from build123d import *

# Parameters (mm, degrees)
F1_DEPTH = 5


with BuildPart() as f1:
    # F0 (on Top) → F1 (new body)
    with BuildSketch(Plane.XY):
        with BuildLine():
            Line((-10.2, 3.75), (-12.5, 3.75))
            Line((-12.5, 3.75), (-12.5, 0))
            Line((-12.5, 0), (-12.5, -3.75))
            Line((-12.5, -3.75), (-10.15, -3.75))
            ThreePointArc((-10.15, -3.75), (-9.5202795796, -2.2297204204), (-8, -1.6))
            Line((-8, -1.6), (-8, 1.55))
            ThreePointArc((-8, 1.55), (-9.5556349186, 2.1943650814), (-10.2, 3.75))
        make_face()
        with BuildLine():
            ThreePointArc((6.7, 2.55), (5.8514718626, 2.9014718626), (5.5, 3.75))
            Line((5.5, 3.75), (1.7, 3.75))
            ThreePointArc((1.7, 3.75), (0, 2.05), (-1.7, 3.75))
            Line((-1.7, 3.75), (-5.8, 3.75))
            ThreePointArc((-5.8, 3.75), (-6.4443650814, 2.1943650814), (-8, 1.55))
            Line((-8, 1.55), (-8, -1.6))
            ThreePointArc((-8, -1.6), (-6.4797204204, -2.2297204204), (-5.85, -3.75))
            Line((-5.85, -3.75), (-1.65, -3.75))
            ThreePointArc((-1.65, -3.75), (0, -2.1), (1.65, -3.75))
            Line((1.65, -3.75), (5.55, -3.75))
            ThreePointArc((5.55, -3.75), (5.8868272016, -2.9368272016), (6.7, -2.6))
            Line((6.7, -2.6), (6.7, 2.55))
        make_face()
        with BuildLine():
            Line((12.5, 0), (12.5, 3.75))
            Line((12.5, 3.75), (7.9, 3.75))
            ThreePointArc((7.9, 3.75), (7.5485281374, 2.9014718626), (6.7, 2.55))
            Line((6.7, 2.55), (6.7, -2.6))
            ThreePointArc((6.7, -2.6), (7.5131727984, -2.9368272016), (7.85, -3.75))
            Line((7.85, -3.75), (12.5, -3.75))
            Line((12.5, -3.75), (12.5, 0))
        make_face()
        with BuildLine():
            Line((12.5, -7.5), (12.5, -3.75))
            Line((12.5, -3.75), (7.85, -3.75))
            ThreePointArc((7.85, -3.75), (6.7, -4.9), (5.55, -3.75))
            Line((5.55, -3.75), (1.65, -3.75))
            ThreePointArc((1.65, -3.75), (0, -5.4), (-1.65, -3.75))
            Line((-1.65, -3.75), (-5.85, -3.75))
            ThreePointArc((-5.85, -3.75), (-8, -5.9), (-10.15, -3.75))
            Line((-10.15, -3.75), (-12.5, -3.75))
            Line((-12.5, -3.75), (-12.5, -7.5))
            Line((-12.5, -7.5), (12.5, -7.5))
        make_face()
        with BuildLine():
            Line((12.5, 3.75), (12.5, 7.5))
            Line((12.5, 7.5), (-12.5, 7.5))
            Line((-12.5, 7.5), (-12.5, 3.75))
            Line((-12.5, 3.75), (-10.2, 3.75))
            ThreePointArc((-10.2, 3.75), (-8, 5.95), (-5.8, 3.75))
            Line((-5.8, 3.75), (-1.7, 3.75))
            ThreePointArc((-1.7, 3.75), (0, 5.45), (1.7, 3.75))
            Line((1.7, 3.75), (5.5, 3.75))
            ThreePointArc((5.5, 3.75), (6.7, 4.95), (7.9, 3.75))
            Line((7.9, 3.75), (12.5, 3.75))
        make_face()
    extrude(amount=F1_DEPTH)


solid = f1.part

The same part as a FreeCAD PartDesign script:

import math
import FreeCAD as App
import Part
import Sketcher
Q = App.Units.Quantity


def add_polygon(sketch, points):
    """Adds a closed chain of lines whose ends are joined by coincident constraints."""
    first, n = sketch.GeometryCount, len(points)
    for a, b in zip(points, points[1:] + points[:1]):
        sketch.addGeometry(Part.LineSegment(App.Vector(*a, 0), App.Vector(*b, 0)), False)
    for i in range(n):
        sketch.addConstraint(Sketcher.Constraint("Coincident", first + i, 2, first + (i + 1) % n, 1))

doc = App.newDocument("Part")
body = doc.addObject("PartDesign::Body", "Body")

# Sketch on XY plane
sketch1 = body.newObject("Sketcher::SketchObject", "Sketch")
sketch1.AttachmentSupport = (doc.getObject("XY_Plane"), [""])
sketch1.MapMode = "FlatFace"
add_polygon(sketch1, [(-12.5, -7.5), (12.5, -7.5), (12.5, 7.5), (-12.5, 7.5)])  # lines 0-3
sketch1.addGeometry(Part.ArcOfCircle(Part.Circle(App.Vector(6.7, 3.8, 0), App.Vector(0, 0, 1), 1.2), math.radians(-90), math.radians(0)), False)  # 4
sketch1.addGeometry(Part.ArcOfCircle(Part.Circle(App.Vector(6.7, 3.8, 0), App.Vector(0, 0, 1), 1.2), math.radians(180), math.radians(270)), False)  # 5
sketch1.addGeometry(Part.ArcOfCircle(Part.Circle(App.Vector(6.7, 3.8, 0), App.Vector(0, 0, 1), 1.2), math.radians(0), math.radians(180)), False)  # 6
sketch1.addGeometry(Part.Circle(App.Vector(0, 3.8, 0), App.Vector(0, 0, 1), 1.7), False)  # 7
sketch1.addGeometry(Part.ArcOfCircle(Part.Circle(App.Vector(-8, 3.8, 0), App.Vector(0, 0, 1), 2.2), math.radians(-90), math.radians(0)), False)  # 8
sketch1.addGeometry(Part.ArcOfCircle(Part.Circle(App.Vector(-8, 3.8, 0), App.Vector(0, 0, 1), 2.2), math.radians(180), math.radians(270)), False)  # 9
sketch1.addGeometry(Part.ArcOfCircle(Part.Circle(App.Vector(-8, 3.8, 0), App.Vector(0, 0, 1), 2.2), math.radians(0), math.radians(180)), False)  # 10
sketch1.addGeometry(Part.ArcOfCircle(Part.Circle(App.Vector(-8, -3.8, 0), App.Vector(0, 0, 1), 2.1), math.radians(90), math.radians(180)), False)  # 11
sketch1.addGeometry(Part.ArcOfCircle(Part.Circle(App.Vector(-8, -3.8, 0), App.Vector(0, 0, 1), 2.1), math.radians(0), math.radians(90)), False)  # 12
sketch1.addGeometry(Part.ArcOfCircle(Part.Circle(App.Vector(-8, -3.8, 0), App.Vector(0, 0, 1), 2.1), math.radians(180), math.radians(360)), False)  # 13
sketch1.addGeometry(Part.Circle(App.Vector(0, -3.8, 0), App.Vector(0, 0, 1), 1.6), False)  # 14
sketch1.addGeometry(Part.ArcOfCircle(Part.Circle(App.Vector(6.7, -3.8, 0), App.Vector(0, 0, 1), 1.1), math.radians(90), math.radians(180)), False)  # 15
sketch1.addGeometry(Part.ArcOfCircle(Part.Circle(App.Vector(6.7, -3.8, 0), App.Vector(0, 0, 1), 1.1), math.radians(0), math.radians(90)), False)  # 16
sketch1.addGeometry(Part.ArcOfCircle(Part.Circle(App.Vector(6.7, -3.8, 0), App.Vector(0, 0, 1), 1.1), math.radians(180), math.radians(360)), False)  # 17
sketch1.addConstraint(Sketcher.Constraint("Tangent", 4, 1, 5, 2))
sketch1.addConstraint(Sketcher.Constraint("Tangent", 5, 1, 6, 2))
sketch1.addConstraint(Sketcher.Constraint("Tangent", 6, 1, 4, 2))
sketch1.addConstraint(Sketcher.Constraint("Tangent", 8, 1, 9, 2))
sketch1.addConstraint(Sketcher.Constraint("Tangent", 9, 1, 10, 2))
sketch1.addConstraint(Sketcher.Constraint("Tangent", 10, 1, 8, 2))
sketch1.addConstraint(Sketcher.Constraint("Tangent", 11, 1, 12, 2))
sketch1.addConstraint(Sketcher.Constraint("Tangent", 12, 1, 13, 2))
sketch1.addConstraint(Sketcher.Constraint("Tangent", 13, 1, 11, 2))
sketch1.addConstraint(Sketcher.Constraint("Tangent", 15, 1, 16, 2))
sketch1.addConstraint(Sketcher.Constraint("Tangent", 16, 1, 17, 2))
sketch1.addConstraint(Sketcher.Constraint("Tangent", 17, 1, 15, 2))
sketch1.addConstraint(Sketcher.Constraint("Horizontal", 0))
sketch1.addConstraint(Sketcher.Constraint("Vertical", 1))
sketch1.addConstraint(Sketcher.Constraint("Horizontal", 2))
sketch1.addConstraint(Sketcher.Constraint("Vertical", 3))
sketch1.addConstraint(Sketcher.Constraint("Symmetric", 7, 3, 14, 3, -1, 1))
sketch1.addConstraint(Sketcher.Constraint("Symmetric", 0, 2, 2, 2, -1, 1))
sketch1.addConstraint(Sketcher.Constraint("Symmetric", 8, 3, 11, 3, -1))
sketch1.addConstraint(Sketcher.Constraint("Symmetric", 4, 3, 15, 3, -1))
sketch1.addConstraint(Sketcher.Constraint("PointOnObject", 7, 3, -2))
sketch1.addConstraint(Sketcher.Constraint("Horizontal", 6, 3, 7, 3))
sketch1.addConstraint(Sketcher.Constraint("Horizontal", 7, 3, 8, 3))
sketch1.addConstraint(Sketcher.Constraint("Horizontal", 10, 3, 5, 1))
sketch1.addConstraint(Sketcher.Constraint("Horizontal", 5, 1, 6, 1))
sketch1.addConstraint(Sketcher.Constraint("Horizontal", 6, 1, 9, 1))
sketch1.addConstraint(Sketcher.Constraint("Horizontal", 9, 1, 10, 1))
sketch1.addConstraint(Sketcher.Constraint("Horizontal", 17, 3, 12, 1))
sketch1.addConstraint(Sketcher.Constraint("Horizontal", 12, 1, 13, 1))
sketch1.addConstraint(Sketcher.Constraint("Horizontal", 13, 1, 16, 1))
sketch1.addConstraint(Sketcher.Constraint("Horizontal", 16, 1, 17, 1))
sketch1.addConstraint(Sketcher.Constraint("Vertical", 17, 3, 4, 1))
sketch1.addConstraint(Sketcher.Constraint("Vertical", 13, 3, 8, 1))
sketch1.addConstraint(Sketcher.Constraint("Vertical", 8, 1, 11, 1))
sketch1.addConstraint(Sketcher.Constraint("Vertical", 4, 1, 15, 1))
sketch1.addConstraint(Sketcher.Constraint("Diameter", 7, Q("3.4 mm")))
sketch1.addConstraint(Sketcher.Constraint("Diameter", 14, Q("3.3 mm")))
sketch1.addConstraint(Sketcher.Constraint("Radius", 4, Q("1.2 mm")))
sketch1.addConstraint(Sketcher.Constraint("Radius", 8, Q("2.2 mm")))
sketch1.addConstraint(Sketcher.Constraint("DistanceX", 0, 1, 0, 2, Q("25 mm")))
sketch1.addConstraint(Sketcher.Constraint("DistanceY", 1, 1, 1, 2, Q("15 mm")))
sketch1.addConstraint(Sketcher.Constraint("Radius", 11, Q("2.15 mm")))
sketch1.addConstraint(Sketcher.Constraint("Radius", 15, Q("1.15 mm")))
sketch1.addConstraint(Sketcher.Constraint("DistanceX", 8, 3, -1, 1, Q("8 mm")))
sketch1.addConstraint(Sketcher.Constraint("DistanceX", -1, 1, 4, 3, Q("6.7 mm")))
sketch1.addConstraint(Sketcher.Constraint("DistanceY", 11, 1, -1, 1, Q("1.6 mm")))
pad1 = body.newObject("PartDesign::Pad", "Pad")
pad1.Profile = sketch1
pad1.Length = 5

doc.recompute()
